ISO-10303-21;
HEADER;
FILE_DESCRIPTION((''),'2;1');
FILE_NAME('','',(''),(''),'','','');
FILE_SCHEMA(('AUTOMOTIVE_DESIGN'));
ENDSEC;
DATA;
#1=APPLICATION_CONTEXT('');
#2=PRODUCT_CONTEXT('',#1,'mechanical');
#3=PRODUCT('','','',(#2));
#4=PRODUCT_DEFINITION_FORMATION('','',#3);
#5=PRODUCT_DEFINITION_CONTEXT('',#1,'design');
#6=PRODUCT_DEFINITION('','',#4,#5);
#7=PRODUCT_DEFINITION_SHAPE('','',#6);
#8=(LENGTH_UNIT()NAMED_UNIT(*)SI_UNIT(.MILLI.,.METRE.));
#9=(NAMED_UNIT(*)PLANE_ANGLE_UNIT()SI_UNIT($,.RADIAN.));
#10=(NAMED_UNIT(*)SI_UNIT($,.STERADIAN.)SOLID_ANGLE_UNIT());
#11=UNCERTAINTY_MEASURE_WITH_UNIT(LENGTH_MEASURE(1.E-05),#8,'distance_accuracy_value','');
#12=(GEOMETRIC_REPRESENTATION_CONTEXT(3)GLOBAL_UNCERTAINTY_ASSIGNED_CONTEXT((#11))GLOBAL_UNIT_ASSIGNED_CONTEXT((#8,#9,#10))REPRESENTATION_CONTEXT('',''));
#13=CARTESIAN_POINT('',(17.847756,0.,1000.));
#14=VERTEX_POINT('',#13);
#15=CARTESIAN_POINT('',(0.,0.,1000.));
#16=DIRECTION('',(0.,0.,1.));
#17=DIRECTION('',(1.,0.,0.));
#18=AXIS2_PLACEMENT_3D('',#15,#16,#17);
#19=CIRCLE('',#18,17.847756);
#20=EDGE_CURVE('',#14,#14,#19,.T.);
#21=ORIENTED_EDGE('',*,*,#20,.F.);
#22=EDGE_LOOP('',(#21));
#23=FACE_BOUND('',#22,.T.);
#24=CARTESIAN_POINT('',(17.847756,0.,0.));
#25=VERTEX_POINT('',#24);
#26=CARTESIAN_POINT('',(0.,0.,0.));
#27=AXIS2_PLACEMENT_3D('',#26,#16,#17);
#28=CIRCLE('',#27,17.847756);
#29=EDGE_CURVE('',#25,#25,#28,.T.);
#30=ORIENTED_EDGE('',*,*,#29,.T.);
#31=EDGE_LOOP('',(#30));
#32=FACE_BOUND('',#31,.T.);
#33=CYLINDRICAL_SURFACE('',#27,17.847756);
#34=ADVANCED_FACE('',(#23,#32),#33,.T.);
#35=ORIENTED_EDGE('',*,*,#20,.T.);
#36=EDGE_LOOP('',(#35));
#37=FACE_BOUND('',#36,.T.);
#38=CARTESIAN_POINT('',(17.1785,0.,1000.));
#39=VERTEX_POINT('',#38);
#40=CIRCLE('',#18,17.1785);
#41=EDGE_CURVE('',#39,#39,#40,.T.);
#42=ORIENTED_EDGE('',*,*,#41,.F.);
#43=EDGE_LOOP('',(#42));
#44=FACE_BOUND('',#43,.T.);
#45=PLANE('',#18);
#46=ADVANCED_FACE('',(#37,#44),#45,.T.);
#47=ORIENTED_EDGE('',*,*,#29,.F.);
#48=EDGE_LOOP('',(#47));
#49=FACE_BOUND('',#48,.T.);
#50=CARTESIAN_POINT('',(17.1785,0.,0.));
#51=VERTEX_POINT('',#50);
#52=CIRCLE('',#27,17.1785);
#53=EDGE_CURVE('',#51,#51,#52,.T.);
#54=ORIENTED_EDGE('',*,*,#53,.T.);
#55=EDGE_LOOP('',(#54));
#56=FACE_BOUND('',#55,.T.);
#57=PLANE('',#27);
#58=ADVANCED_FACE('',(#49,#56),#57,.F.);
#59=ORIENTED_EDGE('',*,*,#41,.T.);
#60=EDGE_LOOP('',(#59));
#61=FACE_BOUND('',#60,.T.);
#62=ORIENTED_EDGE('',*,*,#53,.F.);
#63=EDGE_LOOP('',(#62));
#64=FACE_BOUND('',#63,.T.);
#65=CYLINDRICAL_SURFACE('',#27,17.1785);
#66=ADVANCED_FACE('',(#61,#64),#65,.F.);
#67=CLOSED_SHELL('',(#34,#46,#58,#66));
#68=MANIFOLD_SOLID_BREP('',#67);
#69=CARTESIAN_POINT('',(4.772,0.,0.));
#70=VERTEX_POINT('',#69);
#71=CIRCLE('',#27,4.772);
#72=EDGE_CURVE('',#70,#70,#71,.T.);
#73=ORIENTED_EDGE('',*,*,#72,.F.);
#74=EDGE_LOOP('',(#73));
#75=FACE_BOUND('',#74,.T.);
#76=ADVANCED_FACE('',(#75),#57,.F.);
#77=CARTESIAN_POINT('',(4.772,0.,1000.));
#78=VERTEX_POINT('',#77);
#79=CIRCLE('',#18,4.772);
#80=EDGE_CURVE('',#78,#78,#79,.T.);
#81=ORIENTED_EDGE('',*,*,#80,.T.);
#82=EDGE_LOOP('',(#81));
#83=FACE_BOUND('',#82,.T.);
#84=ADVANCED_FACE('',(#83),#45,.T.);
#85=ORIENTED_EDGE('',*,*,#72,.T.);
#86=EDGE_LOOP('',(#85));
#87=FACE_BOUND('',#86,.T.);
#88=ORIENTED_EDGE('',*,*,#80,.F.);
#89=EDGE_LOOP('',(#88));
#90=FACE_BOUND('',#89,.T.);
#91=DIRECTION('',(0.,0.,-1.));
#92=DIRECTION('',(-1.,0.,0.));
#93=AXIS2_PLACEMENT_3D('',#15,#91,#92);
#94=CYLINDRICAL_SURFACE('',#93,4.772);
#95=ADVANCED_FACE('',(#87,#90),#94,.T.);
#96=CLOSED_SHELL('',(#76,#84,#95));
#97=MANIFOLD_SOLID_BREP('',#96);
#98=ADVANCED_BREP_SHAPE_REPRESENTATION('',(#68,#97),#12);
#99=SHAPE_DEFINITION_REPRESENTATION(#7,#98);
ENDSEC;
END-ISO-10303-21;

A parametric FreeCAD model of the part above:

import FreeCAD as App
import Part
import Sketcher
from FreeCAD import Vector

doc = App.newDocument("Part")
body = doc.addObject("PartDesign::Body", "Body")

# Sketch on XY plane
sketch1 = body.newObject("Sketcher::SketchObject", "Sketch")
sketch1.AttachmentSupport = (doc.getObject("XY_Plane"), [""])
sketch1.MapMode = "FlatFace"
sketch1.addGeometry(Part.Circle(Vector(0, 0, 0), Vector(0, 0, 1), 4.8), False)
sketch1.addConstraint([
    Sketcher.Constraint("Coincident", 0, 3, -1, 1),
    Sketcher.Constraint("Diameter", 0, 9.544),
])
pad1 = body.newObject("PartDesign::Pad", "Pad")
pad1.Profile = sketch1
pad1.Length = 1000
body2 = doc.addObject("PartDesign::Body", "Body001")

# Sketch on XY plane
sketch2 = body2.newObject("Sketcher::SketchObject", "Sketch001")
sketch2.AttachmentSupport = (doc.getObject("XY_Plane001"), [""])
sketch2.MapMode = "FlatFace"
sketch2.AttachmentOffset = App.Placement(Vector(0, 0, 1000), App.Rotation())
sketch2.addGeometry([
    Part.Circle(Vector(0, 0, 0), Vector(0, 0, 1), 18),
    Part.Circle(Vector(0, 0, 0), Vector(0, 0, 1), 17),
], False)
sketch2.addConstraint([
    Sketcher.Constraint("Coincident", 0, 3, -1, 1),
    Sketcher.Constraint("Coincident", 1, 3, -1, 1),
    Sketcher.Constraint("Diameter", 1, 34.357),
    Sketcher.Constraint("Diameter", 0, 35.695511),
])
pad2 = body2.newObject("PartDesign::Pad", "Pad001")
pad2.Profile = sketch2
pad2.Length = 1000
pad2.Reversed = True

doc.recompute()
